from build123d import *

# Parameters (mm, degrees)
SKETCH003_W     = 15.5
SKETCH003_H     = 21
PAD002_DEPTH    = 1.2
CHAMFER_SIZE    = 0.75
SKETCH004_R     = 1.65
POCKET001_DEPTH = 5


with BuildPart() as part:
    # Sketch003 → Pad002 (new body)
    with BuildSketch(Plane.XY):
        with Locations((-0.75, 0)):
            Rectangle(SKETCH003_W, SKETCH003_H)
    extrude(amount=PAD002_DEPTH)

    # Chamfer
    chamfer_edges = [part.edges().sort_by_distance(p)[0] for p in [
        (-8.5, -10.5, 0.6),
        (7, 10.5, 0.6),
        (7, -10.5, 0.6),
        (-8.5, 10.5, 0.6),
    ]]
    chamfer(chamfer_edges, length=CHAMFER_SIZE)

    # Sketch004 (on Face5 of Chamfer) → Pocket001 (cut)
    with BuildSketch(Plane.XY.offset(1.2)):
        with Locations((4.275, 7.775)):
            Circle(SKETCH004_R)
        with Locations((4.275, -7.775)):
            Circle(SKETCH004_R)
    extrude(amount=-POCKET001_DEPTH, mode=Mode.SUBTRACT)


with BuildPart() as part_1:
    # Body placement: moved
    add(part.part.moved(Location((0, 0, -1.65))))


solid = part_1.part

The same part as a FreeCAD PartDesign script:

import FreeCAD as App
import Part
import Sketcher

V = App.Vector
Q = App.Units.Quantity


def edges_at(feature, points):
    """Names of the edges that pass closest to the given points."""
    edges = feature.Shape.Edges
    near = lambda p: min(range(len(edges)), key=lambda i: edges[i].distToShape(Part.Vertex(*p))[0])
    return sorted({f"Edge{near(p) + 1}" for p in points})


def add_polygon(sketch, points):
    """Adds a closed chain of lines whose ends are joined by coincident constraints."""
    first, n = sketch.GeometryCount, len(points)
    for a, b in zip(points, points[1:] + points[:1]):
        sketch.addGeometry(Part.LineSegment(App.Vector(*a, 0), App.Vector(*b, 0)), False)
    for i in range(n):
        sketch.addConstraint(Sketcher.Constraint("Coincident", first + i, 2, first + (i + 1) % n, 1))

doc = App.newDocument("Part")
params = doc.addObject("Spreadsheet::Sheet", "Params")
for row, (alias, value) in enumerate([
    ("sketch1_height", "21 mm"),
    ("sketch1_width", "15.5 mm"),
    ("pad1_length", "1.2 mm"),
    ("chamfer_size", "0.75 mm"),
    ("sketch2_diameter", "3.3 mm"),
    ("pocket1_length", "5 mm"),
], start=1):
    params.set(f"A{row}", alias)
    params.set(f"B{row}", "=" + value)
    params.setAlias(f"B{row}", alias)

body = doc.addObject("PartDesign::Body", "Body")

# Sketch on XY plane
sketch1 = body.newObject("Sketcher::SketchObject", "Sketch")
sketch1.AttachmentSupport = (doc.getObject("XY_Plane"), [""])
sketch1.MapMode = "FlatFace"
add_polygon(sketch1, [(-8, 10), (-8, -10), (7, -10), (7, 10)])  # lines 0-3
sketch1.addConstraint([
    Sketcher.Constraint("Vertical", 0),
    Sketcher.Constraint("Horizontal", 1),
    Sketcher.Constraint("Vertical", 2),
    Sketcher.Constraint("Horizontal", 3),
    Sketcher.Constraint("DistanceY", 0, 2, 0, 1, Q("21 mm")),
    Sketcher.Constraint("DistanceX", 1, 1, 1, 2, Q("15.5 mm")),
    Sketcher.Constraint("DistanceX", -1, 1, 1, 2, Q("7 mm")),
    Sketcher.Constraint("DistanceY", 0, 2, -1, 1, Q("10.5 mm")),
])
sketch1.setExpression("Constraints[8]", "Params.sketch1_height")
sketch1.setExpression("Constraints[9]", "Params.sketch1_width")
pad1 = body.newObject("PartDesign::Pad", "Pad")
pad1.Profile = sketch1
pad1.setExpression("Length", "Params.pad1_length")
doc.recompute()

chamfer = body.newObject("PartDesign::Chamfer", "Chamfer")
chamfer.Base = (pad1, edges_at(pad1, [
    (-8.5, -10.5, 0.6),
    (7, 10.5, 0.6),
    (7, -10.5, 0.6),
    (-8.5, 10.5, 0.6),
]))
chamfer.setExpression("Size", "Params.chamfer_size")

# Sketch on XY plane
sketch2 = body.newObject("Sketcher::SketchObject", "Sketch001")
sketch2.AttachmentSupport = (doc.getObject("XY_Plane"), [""])
sketch2.MapMode = "FlatFace"
sketch2.AttachmentOffset = App.Placement(V(0, 0, 1.2), App.Rotation())
sketch2.addGeometry([
    Part.Circle(V(4.3, 7.8, 0), V(0, 0, 1), 1.6),
    Part.Circle(V(4.3, -7.8, 0), V(0, 0, 1), 1.6),
], False)
sketch2.addConstraint([
    Sketcher.Constraint("Equal", 0, 1),
    Sketcher.Constraint("Symmetric", 0, 3, 1, 3, -1),
    Sketcher.Constraint("Diameter", 0, Q("3.3 mm")),
    Sketcher.Constraint("DistanceY", 1, 3, 0, 3, Q("15.55 mm")),
    Sketcher.Constraint("DistanceX", -1, 1, 0, 3, Q("4.275 mm")),
])
sketch2.setExpression("Constraints[2]", "Params.sketch2_diameter")
pocket1 = body.newObject("PartDesign::Pocket", "Pocket")
pocket1.Profile = sketch2
pocket1.setExpression("Length", "Params.pocket1_length")
body2 = doc.addObject("PartDesign::Body", "Body001")
doc.recompute()

body.Placement = App.Placement(V(0, 0, -1.65), App.Rotation(V(0, 0, 1), 0))
boolean = body2.newObject("PartDesign::Boolean", "Boolean")
boolean.Type = "Fuse"
boolean.addObjects([body])

doc.recompute()
